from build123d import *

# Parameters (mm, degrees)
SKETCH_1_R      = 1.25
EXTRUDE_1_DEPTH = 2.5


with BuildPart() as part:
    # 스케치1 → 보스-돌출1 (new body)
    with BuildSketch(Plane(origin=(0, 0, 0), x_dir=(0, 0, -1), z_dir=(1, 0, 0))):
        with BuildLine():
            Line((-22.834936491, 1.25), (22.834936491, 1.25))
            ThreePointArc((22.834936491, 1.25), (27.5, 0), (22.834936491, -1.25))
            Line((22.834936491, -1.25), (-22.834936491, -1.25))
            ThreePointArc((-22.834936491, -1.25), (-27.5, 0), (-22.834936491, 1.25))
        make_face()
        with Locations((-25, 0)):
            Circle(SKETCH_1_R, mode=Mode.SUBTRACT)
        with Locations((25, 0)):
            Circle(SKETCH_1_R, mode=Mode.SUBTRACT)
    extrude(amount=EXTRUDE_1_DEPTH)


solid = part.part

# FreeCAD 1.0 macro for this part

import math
import FreeCAD as App
import Part
import Sketcher
from FreeCAD import Vector

doc = App.newDocument("Part")
body = doc.addObject("PartDesign::Body", "Body")

# Sketch on YZ plane
sketch1 = body.newObject("Sketcher::SketchObject", "Sketch")
sketch1.AttachmentSupport = (doc.getObject("YZ_Plane"), [""])
sketch1.MapMode = "FlatFace"
sketch1.addGeometry([
    Part.LineSegment(Vector(1.2, -22.8, 0), Vector(1.2, 22.8, 0)),  # 0
    Part.ArcOfCircle(Part.Circle(Vector(0, 25, 0), Vector(0, 0, 1), 2.5), math.radians(-60), math.radians(240)),  # 1
    Part.LineSegment(Vector(-1.2, 22.8, 0), Vector(-1.2, -22.8, 0)),  # 2
    Part.ArcOfCircle(Part.Circle(Vector(0, -25, 0), Vector(0, 0, 1), 2.5), math.radians(120), math.radians(420)),  # 3
    Part.Circle(Vector(0, -25, 0), Vector(0, 0, 1), 1.2),  # 4
    Part.Circle(Vector(0, 25, 0), Vector(0, 0, 1), 1.2),  # 5
], False)
sketch1.addConstraint([
    Sketcher.Constraint("Coincident", 0, 2, 1, 1),
    Sketcher.Constraint("Coincident", 1, 2, 2, 1),
    Sketcher.Constraint("Coincident", 2, 2, 3, 1),
    Sketcher.Constraint("Coincident", 3, 2, 0, 1),
    Sketcher.Constraint("Vertical", 0),
    Sketcher.Constraint("Vertical", 2),
    Sketcher.Constraint("Coincident", 4, 3, 3, 3),
    Sketcher.Constraint("Coincident", 5, 3, 1, 3),
    Sketcher.Constraint("Equal", 1, 3),
    Sketcher.Constraint("Equal", 4, 5),
    Sketcher.Constraint("Symmetric", 1, 3, 3, 3, -1, 1),
    Sketcher.Constraint("Symmetric", 0, 2, 1, 2, -2),
    Sketcher.Constraint("Diameter", 4, 2.5),
    Sketcher.Constraint("Radius", 1, 2.5),
    Sketcher.Constraint("DistanceY", -1, 1, 1, 3, 25.0),
    Sketcher.Constraint("DistanceX", 1, 2, 0, 2, 2.5),
])
pad1 = body.newObject("PartDesign::Pad", "Pad")
pad1.Profile = sketch1
pad1.Length = 2.5

doc.recompute()
